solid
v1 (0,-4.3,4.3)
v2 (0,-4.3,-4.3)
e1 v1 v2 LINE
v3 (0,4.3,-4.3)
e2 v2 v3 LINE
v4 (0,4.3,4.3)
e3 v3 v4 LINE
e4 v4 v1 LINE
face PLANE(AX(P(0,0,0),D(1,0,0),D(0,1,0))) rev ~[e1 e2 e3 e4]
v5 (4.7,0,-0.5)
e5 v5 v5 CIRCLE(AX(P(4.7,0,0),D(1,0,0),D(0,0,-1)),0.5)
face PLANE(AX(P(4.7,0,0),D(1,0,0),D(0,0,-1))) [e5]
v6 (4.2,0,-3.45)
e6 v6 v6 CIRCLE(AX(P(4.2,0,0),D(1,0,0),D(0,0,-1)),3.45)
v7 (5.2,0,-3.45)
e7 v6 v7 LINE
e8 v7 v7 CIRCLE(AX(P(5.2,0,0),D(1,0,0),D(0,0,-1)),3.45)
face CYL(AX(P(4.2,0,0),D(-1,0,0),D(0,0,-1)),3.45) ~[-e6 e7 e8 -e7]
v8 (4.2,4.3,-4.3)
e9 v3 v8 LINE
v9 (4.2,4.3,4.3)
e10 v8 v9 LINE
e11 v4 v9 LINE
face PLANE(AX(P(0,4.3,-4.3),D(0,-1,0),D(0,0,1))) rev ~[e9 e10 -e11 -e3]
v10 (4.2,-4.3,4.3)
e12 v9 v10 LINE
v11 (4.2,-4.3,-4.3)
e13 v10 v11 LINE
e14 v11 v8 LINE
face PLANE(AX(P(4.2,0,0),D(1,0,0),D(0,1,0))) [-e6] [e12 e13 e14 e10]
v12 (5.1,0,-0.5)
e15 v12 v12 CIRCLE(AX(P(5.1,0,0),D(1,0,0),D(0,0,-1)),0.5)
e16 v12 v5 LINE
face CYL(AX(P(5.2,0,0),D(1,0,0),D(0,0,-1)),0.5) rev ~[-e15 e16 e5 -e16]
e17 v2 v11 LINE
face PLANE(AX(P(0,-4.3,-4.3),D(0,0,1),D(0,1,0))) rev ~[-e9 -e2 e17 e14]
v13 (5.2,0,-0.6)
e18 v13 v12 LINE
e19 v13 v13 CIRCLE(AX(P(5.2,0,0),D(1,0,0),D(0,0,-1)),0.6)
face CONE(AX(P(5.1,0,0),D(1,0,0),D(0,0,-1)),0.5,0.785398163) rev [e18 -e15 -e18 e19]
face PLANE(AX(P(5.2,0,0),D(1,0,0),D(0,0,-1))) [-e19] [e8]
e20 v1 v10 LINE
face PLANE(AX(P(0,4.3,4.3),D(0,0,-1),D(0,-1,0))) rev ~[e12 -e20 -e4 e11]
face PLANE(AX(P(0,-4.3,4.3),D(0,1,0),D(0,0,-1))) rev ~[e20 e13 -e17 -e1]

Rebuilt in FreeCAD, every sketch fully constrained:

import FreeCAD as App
import Part
import Sketcher


def edges_at(feature, points):
    """Names of the edges that pass closest to the given points."""
    edges = feature.Shape.Edges
    near = lambda p: min(range(len(edges)), key=lambda i: edges[i].distToShape(Part.Vertex(*p))[0])
    return sorted({f"Edge{near(p) + 1}" for p in points})

doc = App.newDocument("Part")
params = doc.addObject("Spreadsheet::Sheet", "Params")
for row, (alias, value) in enumerate([
    ("sketch1_width", "8.6 mm"),
    ("pad1_length", "4.2 mm"),
    ("sketch2_diameter", "6.9 mm"),
    ("pad2_length", "1 mm"),
    ("sketch3_diameter", "1 mm"),
    ("pocket1_length", "0.5 mm"),
    ("chamfer_size", "0.1 mm"),
], start=1):
    params.set(f"A{row}", alias)
    params.set(f"B{row}", "=" + value)
    params.setAlias(f"B{row}", alias)

body = doc.addObject("PartDesign::Body", "Body")

# Sketch on YZ plane
sketch1 = body.newObject("Sketcher::SketchObject", "Sketch")
sketch1.AttachmentSupport = (doc.getObject("YZ_Plane"), [""])
sketch1.MapMode = "FlatFace"
sketch1.addGeometry([
    Part.LineSegment(App.Vector(4, -4, 0), App.Vector(4, 4, 0)),
    Part.LineSegment(App.Vector(4, 4, 0), App.Vector(-4, 4, 0)),
    Part.LineSegment(App.Vector(-4, 4, 0), App.Vector(-4, -4, 0)),
    Part.LineSegment(App.Vector(-4, -4, 0), App.Vector(4, -4, 0)),
], False)
sketch1.addConstraint([
    Sketcher.Constraint("Coincident", 0, 2, 1, 1),
    Sketcher.Constraint("Coincident", 1, 2, 2, 1),
    Sketcher.Constraint("Coincident", 2, 2, 3, 1),
    Sketcher.Constraint("Coincident", 3, 2, 0, 1),
    Sketcher.Constraint("Vertical", 0),
    Sketcher.Constraint("Horizontal", 1),
    Sketcher.Constraint("Vertical", 2),
    Sketcher.Constraint("Horizontal", 3),
    Sketcher.Constraint("Symmetric", 0, 2, 2, 2, -1, 1),
    Sketcher.Constraint("Equal", 3, 0),
    Sketcher.Constraint("DistanceX", 1, 2, 1, 1, 8.6),
])
sketch1.setExpression("Constraints[10]", "Params.sketch1_width")
pad1 = body.newObject("PartDesign::Pad", "Pad")
pad1.Profile = sketch1
pad1.setExpression("Length", "Params.pad1_length")

# Sketch on YZ plane
sketch2 = body.newObject("Sketcher::SketchObject", "Sketch001")
sketch2.AttachmentSupport = (doc.getObject("YZ_Plane"), [""])
sketch2.MapMode = "FlatFace"
sketch2.AttachmentOffset = App.Placement(App.Vector(0, 0, 4.2), App.Rotation())
sketch2.addGeometry(Part.Circle(App.Vector(0, 0, 0), App.Vector(0, 0, 1), 3.5), False)
sketch2.addConstraint([
    Sketcher.Constraint("Coincident", 0, 3, -1, 1),
    Sketcher.Constraint("Diameter", 0, 6.9),
])
sketch2.setExpression("Constraints[1]", "Params.sketch2_diameter")
pad2 = body.newObject("PartDesign::Pad", "Pad001")
pad2.Profile = sketch2
pad2.setExpression("Length", "Params.pad2_length")

# Sketch on YZ plane
sketch3 = body.newObject("Sketcher::SketchObject", "Sketch002")
sketch3.AttachmentSupport = (doc.getObject("YZ_Plane"), [""])
sketch3.MapMode = "FlatFace"
sketch3.AttachmentOffset = App.Placement(App.Vector(0, 0, 5.2), App.Rotation())
sketch3.addGeometry(Part.Circle(App.Vector(0, 0, 0), App.Vector(0, 0, 1), 0.5), False)
sketch3.addConstraint([
    Sketcher.Constraint("Coincident", 0, 3, -1, 1),
    Sketcher.Constraint("Diameter", 0, 1.0),
])
sketch3.setExpression("Constraints[1]", "Params.sketch3_diameter")
pocket1 = body.newObject("PartDesign::Pocket", "Pocket")
pocket1.Profile = sketch3
pocket1.setExpression("Length", "Params.pocket1_length")
doc.recompute()

chamfer = body.newObject("PartDesign::Chamfer", "Chamfer")
chamfer.Base = (pocket1, edges_at(pocket1, [(5.2, 0, 0.5)]))
chamfer.setExpression("Size", "Params.chamfer_size")

doc.recompute()
